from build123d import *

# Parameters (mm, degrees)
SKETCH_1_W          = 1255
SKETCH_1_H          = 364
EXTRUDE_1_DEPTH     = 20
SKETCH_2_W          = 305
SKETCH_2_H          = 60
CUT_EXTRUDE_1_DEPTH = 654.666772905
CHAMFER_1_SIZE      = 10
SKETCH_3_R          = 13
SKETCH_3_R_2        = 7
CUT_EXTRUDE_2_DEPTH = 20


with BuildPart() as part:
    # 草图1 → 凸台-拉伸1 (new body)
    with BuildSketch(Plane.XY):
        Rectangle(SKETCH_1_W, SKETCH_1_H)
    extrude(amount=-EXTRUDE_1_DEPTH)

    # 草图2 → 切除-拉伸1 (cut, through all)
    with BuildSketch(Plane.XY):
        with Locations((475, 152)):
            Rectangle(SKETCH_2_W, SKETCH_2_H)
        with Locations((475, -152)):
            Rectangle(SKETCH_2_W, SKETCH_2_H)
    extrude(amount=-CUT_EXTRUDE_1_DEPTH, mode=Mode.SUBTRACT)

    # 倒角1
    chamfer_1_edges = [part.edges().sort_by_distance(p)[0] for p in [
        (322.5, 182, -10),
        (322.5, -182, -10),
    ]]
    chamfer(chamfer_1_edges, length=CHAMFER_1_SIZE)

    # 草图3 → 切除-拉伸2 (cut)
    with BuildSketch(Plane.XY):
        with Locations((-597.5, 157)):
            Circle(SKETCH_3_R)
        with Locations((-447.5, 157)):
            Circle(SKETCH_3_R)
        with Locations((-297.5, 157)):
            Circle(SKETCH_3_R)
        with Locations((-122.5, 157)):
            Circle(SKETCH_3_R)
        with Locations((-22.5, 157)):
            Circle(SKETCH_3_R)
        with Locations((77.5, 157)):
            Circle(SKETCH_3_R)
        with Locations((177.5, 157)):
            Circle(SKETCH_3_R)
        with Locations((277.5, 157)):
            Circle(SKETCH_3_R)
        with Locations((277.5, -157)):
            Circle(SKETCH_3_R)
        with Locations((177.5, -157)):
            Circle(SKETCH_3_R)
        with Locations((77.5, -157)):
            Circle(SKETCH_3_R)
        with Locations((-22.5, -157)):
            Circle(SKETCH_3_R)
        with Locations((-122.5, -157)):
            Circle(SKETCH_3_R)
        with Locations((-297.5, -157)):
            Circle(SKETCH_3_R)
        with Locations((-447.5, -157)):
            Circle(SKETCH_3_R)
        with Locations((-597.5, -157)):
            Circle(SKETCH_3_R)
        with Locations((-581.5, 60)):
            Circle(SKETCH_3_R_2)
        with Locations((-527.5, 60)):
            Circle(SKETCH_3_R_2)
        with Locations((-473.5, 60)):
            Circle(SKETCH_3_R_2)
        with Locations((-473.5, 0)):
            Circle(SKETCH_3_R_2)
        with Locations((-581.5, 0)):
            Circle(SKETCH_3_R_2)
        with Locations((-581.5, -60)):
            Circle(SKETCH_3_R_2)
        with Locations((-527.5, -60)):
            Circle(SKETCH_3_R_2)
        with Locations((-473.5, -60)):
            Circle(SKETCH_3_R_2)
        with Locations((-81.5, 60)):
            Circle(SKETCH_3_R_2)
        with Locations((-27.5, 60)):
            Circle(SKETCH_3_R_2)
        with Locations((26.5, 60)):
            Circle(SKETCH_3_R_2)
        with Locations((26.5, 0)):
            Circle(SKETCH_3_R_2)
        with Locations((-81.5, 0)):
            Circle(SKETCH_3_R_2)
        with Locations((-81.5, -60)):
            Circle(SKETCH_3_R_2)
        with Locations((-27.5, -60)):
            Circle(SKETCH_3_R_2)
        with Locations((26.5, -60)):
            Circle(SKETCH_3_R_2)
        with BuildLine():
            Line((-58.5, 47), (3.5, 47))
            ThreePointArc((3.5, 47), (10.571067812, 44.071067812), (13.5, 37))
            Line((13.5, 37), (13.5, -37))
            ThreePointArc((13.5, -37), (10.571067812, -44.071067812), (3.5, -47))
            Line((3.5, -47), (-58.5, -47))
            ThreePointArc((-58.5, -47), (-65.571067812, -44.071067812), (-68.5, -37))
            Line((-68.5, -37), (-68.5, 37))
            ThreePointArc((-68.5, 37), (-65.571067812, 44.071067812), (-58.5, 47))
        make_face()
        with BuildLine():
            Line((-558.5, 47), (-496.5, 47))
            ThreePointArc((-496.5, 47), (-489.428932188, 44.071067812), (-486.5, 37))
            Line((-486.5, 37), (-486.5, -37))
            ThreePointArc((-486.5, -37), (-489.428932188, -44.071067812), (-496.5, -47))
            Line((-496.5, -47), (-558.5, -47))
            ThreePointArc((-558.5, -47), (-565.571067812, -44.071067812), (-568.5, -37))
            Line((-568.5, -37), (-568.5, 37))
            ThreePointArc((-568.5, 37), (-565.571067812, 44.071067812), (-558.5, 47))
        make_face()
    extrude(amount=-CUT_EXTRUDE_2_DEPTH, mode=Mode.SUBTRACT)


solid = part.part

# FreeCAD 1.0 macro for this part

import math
import FreeCAD as App
import Part
import Sketcher

V = App.Vector
Q = App.Units.Quantity


def edges_at(feature, points):
    """Names of the edges that pass closest to the given points."""
    edges = feature.Shape.Edges
    near = lambda p: min(range(len(edges)), key=lambda i: edges[i].distToShape(Part.Vertex(*p))[0])
    return sorted({f"Edge{near(p) + 1}" for p in points})


def add_polygon(sketch, points):
    """Adds a closed chain of lines whose ends are joined by coincident constraints."""
    first, n = sketch.GeometryCount, len(points)
    for a, b in zip(points, points[1:] + points[:1]):
        sketch.addGeometry(Part.LineSegment(App.Vector(*a, 0), App.Vector(*b, 0)), False)
    for i in range(n):
        sketch.addConstraint(Sketcher.Constraint("Coincident", first + i, 2, first + (i + 1) % n, 1))

doc = App.newDocument("Part")
body = doc.addObject("PartDesign::Body", "Body")

# Sketch on XY plane
sketch1 = body.newObject("Sketcher::SketchObject", "Sketch")
sketch1.AttachmentSupport = (doc.getObject("XY_Plane"), [""])
sketch1.MapMode = "FlatFace"
add_polygon(sketch1, [(-628, 182), (-628, -182), (628, -182), (628, 182)])  # lines 0-3
sketch1.addConstraint([
    Sketcher.Constraint("Vertical", 0),
    Sketcher.Constraint("Horizontal", 1),
    Sketcher.Constraint("Vertical", 2),
    Sketcher.Constraint("Horizontal", 3),
    Sketcher.Constraint("Symmetric", 0, 2, 2, 2, -1, 1),
    Sketcher.Constraint("DistanceX", 1, 1, 1, 2, Q("1255 mm")),
    Sketcher.Constraint("DistanceY", 0, 2, 0, 1, Q("364 mm")),
])
pad1 = body.newObject("PartDesign::Pad", "Pad")
pad1.Profile = sketch1
pad1.Length = 20
pad1.Reversed = True

# Sketch on XY plane
sketch2 = body.newObject("Sketcher::SketchObject", "Sketch001")
sketch2.AttachmentSupport = (doc.getObject("XY_Plane"), [""])
sketch2.MapMode = "FlatFace"
add_polygon(sketch2, [(322, 182), (322, 122), (628, 122), (628, 182)])  # lines 0-3
add_polygon(sketch2, [(322, -122), (322, -182), (628, -182), (628, -122)])  # lines 4-7
sketch2.addConstraint([
    Sketcher.Constraint("Vertical", 0),
    Sketcher.Constraint("Horizontal", 1),
    Sketcher.Constraint("Vertical", 2),
    Sketcher.Constraint("Horizontal", 3),
    Sketcher.Constraint("Vertical", 4),
    Sketcher.Constraint("Horizontal", 5),
    Sketcher.Constraint("Vertical", 6),
    Sketcher.Constraint("Horizontal", 7),
    Sketcher.Constraint("Symmetric", 3, 2, 4, 2, -1),
    Sketcher.Constraint("Symmetric", 1, 2, 6, 2, -1),
    Sketcher.Constraint("DistanceX", 1, 1, 1, 2, Q("305 mm")),
    Sketcher.Constraint("DistanceY", 0, 2, 0, 1, Q("60 mm")),
    Sketcher.Constraint("DistanceY", -1, 1, 0, 2, Q("122 mm")),
    Sketcher.Constraint("DistanceX", -1, 1, 0, 2, Q("322.5 mm")),
])
pocket1 = body.newObject("PartDesign::Pocket", "Pocket")
pocket1.Profile = sketch2
pocket1.Type = "ThroughAll"
doc.recompute()

chamfer = body.newObject("PartDesign::Chamfer", "Chamfer")
chamfer.Base = (pocket1, edges_at(pocket1, [(322.5, 182, -10), (322.5, -182, -10)]))
chamfer.Size = 10

# Sketch on XY plane
sketch3 = body.newObject("Sketcher::SketchObject", "Sketch002")
sketch3.AttachmentSupport = (doc.getObject("XY_Plane"), [""])
sketch3.MapMode = "FlatFace"
sketch3.addGeometry([
    Part.Circle(V(-598, 157, 0), V(0, 0, 1), 13),  # 0
    Part.Circle(V(-448, 157, 0), V(0, 0, 1), 13),  # 1
    Part.Circle(V(-298, 157, 0), V(0, 0, 1), 13),  # 2
    Part.Circle(V(-122, 157, 0), V(0, 0, 1), 13),  # 3
    Part.Circle(V(-22, 157, 0), V(0, 0, 1), 13),  # 4
    Part.Circle(V(78, 157, 0), V(0, 0, 1), 13),  # 5
    Part.Circle(V(178, 157, 0), V(0, 0, 1), 13),  # 6
    Part.Circle(V(278, 157, 0), V(0, 0, 1), 13),  # 7
    Part.Circle(V(278, -157, 0), V(0, 0, 1), 13),  # 8
    Part.Circle(V(178, -157, 0), V(0, 0, 1), 13),  # 9
    Part.Circle(V(78, -157, 0), V(0, 0, 1), 13),  # 10
    Part.Circle(V(-22, -157, 0), V(0, 0, 1), 13),  # 11
    Part.Circle(V(-122, -157, 0), V(0, 0, 1), 13),  # 12
    Part.Circle(V(-298, -157, 0), V(0, 0, 1), 13),  # 13
    Part.Circle(V(-448, -157, 0), V(0, 0, 1), 13),  # 14
    Part.Circle(V(-598, -157, 0), V(0, 0, 1), 13),  # 15
    Part.Circle(V(-582, 60, 0), V(0, 0, 1), 7),  # 16
    Part.Circle(V(-528, 60, 0), V(0, 0, 1), 7),  # 17
    Part.Circle(V(-474, 60, 0), V(0, 0, 1), 7),  # 18
    Part.Circle(V(-474, 0, 0), V(0, 0, 1), 7),  # 19
    Part.Circle(V(-582, 0, 0), V(0, 0, 1), 7),  # 20
    Part.Circle(V(-582, -60, 0), V(0, 0, 1), 7),  # 21
    Part.Circle(V(-528, -60, 0), V(0, 0, 1), 7),  # 22
    Part.Circle(V(-474, -60, 0), V(0, 0, 1), 7),  # 23
    Part.Circle(V(-82, 60, 0), V(0, 0, 1), 7),  # 24
    Part.Circle(V(-28, 60, 0), V(0, 0, 1), 7),  # 25
    Part.Circle(V(26, 60, 0), V(0, 0, 1), 7),  # 26
    Part.Circle(V(26, 0, 0), V(0, 0, 1), 7),  # 27
    Part.Circle(V(-82, 0, 0), V(0, 0, 1), 7),  # 28
    Part.Circle(V(-82, -60, 0), V(0, 0, 1), 7),  # 29
    Part.Circle(V(-28, -60, 0), V(0, 0, 1), 7),  # 30
    Part.Circle(V(26, -60, 0), V(0, 0, 1), 7),  # 31
    Part.LineSegment(V(4, 47, 0), V(-58, 47, 0)),  # 32
    Part.ArcOfCircle(Part.Circle(V(-58, 37, 0), V(0, 0, 1), 10), math.radians(90), math.radians(180)),  # 33
    Part.LineSegment(V(-68, 37, 0), V(-68, -37, 0)),  # 34
    Part.ArcOfCircle(Part.Circle(V(-58, -37, 0), V(0, 0, 1), 10), math.radians(180), math.radians(270)),  # 35
    Part.LineSegment(V(-58, -47, 0), V(4, -47, 0)),  # 36
    Part.ArcOfCircle(Part.Circle(V(4, -37, 0), V(0, 0, 1), 10), math.radians(-90), math.radians(0)),  # 37
    Part.LineSegment(V(14, -37, 0), V(14, 37, 0)),  # 38
    Part.ArcOfCircle(Part.Circle(V(4, 37, 0), V(0, 0, 1), 10), math.radians(0), math.radians(90)),  # 39
    Part.LineSegment(V(-496, 47, 0), V(-558, 47, 0)),  # 40
    Part.ArcOfCircle(Part.Circle(V(-558, 37, 0), V(0, 0, 1), 10), math.radians(90), math.radians(180)),  # 41
    Part.LineSegment(V(-568, 37, 0), V(-568, -37, 0)),  # 42
    Part.ArcOfCircle(Part.Circle(V(-558, -37, 0), V(0, 0, 1), 10), math.radians(180), math.radians(270)),  # 43
    Part.LineSegment(V(-558, -47, 0), V(-496, -47, 0)),  # 44
    Part.ArcOfCircle(Part.Circle(V(-496, -37, 0), V(0, 0, 1), 10), math.radians(-90), math.radians(0)),  # 45
    Part.LineSegment(V(-486, -37, 0), V(-486, 37, 0)),  # 46
    Part.ArcOfCircle(Part.Circle(V(-496, 37, 0), V(0, 0, 1), 10), math.radians(0), math.radians(90)),  # 47
], False)
sketch3.addConstraint([
    Sketcher.Constraint("Tangent", 32, 2, 33, 1),
    Sketcher.Constraint("Tangent", 33, 2, 34, 1),
    Sketcher.Constraint("Tangent", 34, 2, 35, 1),
    Sketcher.Constraint("Tangent", 35, 2, 36, 1),
    Sketcher.Constraint("Tangent", 36, 2, 37, 1),
    Sketcher.Constraint("Tangent", 37, 2, 38, 1),
    Sketcher.Constraint("Tangent", 38, 2, 39, 1),
    Sketcher.Constraint("Tangent", 39, 2, 32, 1),
    Sketcher.Constraint("Tangent", 40, 2, 41, 1),
    Sketcher.Constraint("Tangent", 41, 2, 42, 1),
    Sketcher.Constraint("Tangent", 42, 2, 43, 1),
    Sketcher.Constraint("Tangent", 43, 2, 44, 1),
    Sketcher.Constraint("Tangent", 44, 2, 45, 1),
    Sketcher.Constraint("Tangent", 45, 2, 46, 1),
    Sketcher.Constraint("Tangent", 46, 2, 47, 1),
    Sketcher.Constraint("Tangent", 47, 2, 40, 1),
    Sketcher.Constraint("Horizontal", 32),
    Sketcher.Constraint("Vertical", 34),
    Sketcher.Constraint("Horizontal", 36),
    Sketcher.Constraint("Vertical", 38),
    Sketcher.Constraint("Horizontal", 40),
    Sketcher.Constraint("Vertical", 42),
    Sketcher.Constraint("Horizontal", 44),
    Sketcher.Constraint("Vertical", 46),
    Sketcher.Constraint("Equal", 0, 1),
    Sketcher.Constraint("Equal", 1, 2),
    Sketcher.Constraint("Equal", 2, 3),
    Sketcher.Constraint("Equal", 3, 4),
    Sketcher.Constraint("Equal", 4, 5),
    Sketcher.Constraint("Equal", 5, 6),
    Sketcher.Constraint("Equal", 6, 7),
    Sketcher.Constraint("Equal", 7, 8),
    Sketcher.Constraint("Equal", 8, 9),
    Sketcher.Constraint("Equal", 9, 10),
    Sketcher.Constraint("Equal", 10, 11),
    Sketcher.Constraint("Equal", 11, 12),
    Sketcher.Constraint("Equal", 12, 13),
    Sketcher.Constraint("Equal", 13, 14),
    Sketcher.Constraint("Equal", 14, 15),
    Sketcher.Constraint("Equal", 16, 17),
    Sketcher.Constraint("Equal", 17, 18),
    Sketcher.Constraint("Equal", 18, 19),
    Sketcher.Constraint("Equal", 19, 20),
    Sketcher.Constraint("Equal", 20, 21),
    Sketcher.Constraint("Equal", 21, 22),
    Sketcher.Constraint("Equal", 22, 23),
    Sketcher.Constraint("Equal", 23, 24),
    Sketcher.Constraint("Equal", 24, 25),
    Sketcher.Constraint("Equal", 25, 26),
    Sketcher.Constraint("Equal", 26, 27),
    Sketcher.Constraint("Equal", 27, 28),
    Sketcher.Constraint("Equal", 28, 29),
    Sketcher.Constraint("Equal", 29, 30),
    Sketcher.Constraint("Equal", 30, 31),
    Sketcher.Constraint("Equal", 33, 35),
    Sketcher.Constraint("Equal", 35, 37),
    Sketcher.Constraint("Equal", 37, 39),
    Sketcher.Constraint("Equal", 39, 41),
    Sketcher.Constraint("Equal", 41, 43),
    Sketcher.Constraint("Equal", 43, 45),
    Sketcher.Constraint("Equal", 45, 47),
    Sketcher.Constraint("Symmetric", 7, 3, 8, 3, -1),
    Sketcher.Constraint("Symmetric", 6, 3, 9, 3, -1),
    Sketcher.Constraint("Symmetric", 5, 3, 10, 3, -1),
    Sketcher.Constraint("Symmetric", 4, 3, 11, 3, -1),
    Sketcher.Constraint("Symmetric", 3, 3, 12, 3, -1),
    Sketcher.Constraint("Symmetric", 2, 3, 13, 3, -1),
    Sketcher.Constraint("Symmetric", 1, 3, 14, 3, -1),
    Sketcher.Constraint("Symmetric", 0, 3, 15, 3, -1),
    Sketcher.Constraint("Symmetric", 16, 3, 21, 3, -1),
    Sketcher.Constraint("Symmetric", 17, 3, 22, 3, -1),
    Sketcher.Constraint("Symmetric", 18, 3, 23, 3, -1),
    Sketcher.Constraint("Symmetric", 24, 3, 29, 3, -1),
    Sketcher.Constraint("Symmetric", 25, 3, 30, 3, -1),
    Sketcher.Constraint("Symmetric", 26, 3, 31, 3, -1),
    Sketcher.Constraint("PointOnObject", 19, 3, -1),
    Sketcher.Constraint("PointOnObject", 20, 3, -1),
    Sketcher.Constraint("PointOnObject", 27, 3, -1),
    Sketcher.Constraint("PointOnObject", 28, 3, -1),
    Sketcher.Constraint("Horizontal", 0, 3, 1, 3),
    Sketcher.Constraint("Horizontal", 1, 3, 2, 3),
    Sketcher.Constraint("Horizontal", 2, 3, 3, 3),
    Sketcher.Constraint("Horizontal", 3, 3, 4, 3),
    Sketcher.Constraint("Horizontal", 4, 3, 5, 3),
    Sketcher.Constraint("Horizontal", 5, 3, 6, 3),
    Sketcher.Constraint("Horizontal", 6, 3, 7, 3),
    Sketcher.Constraint("Horizontal", 16, 3, 17, 3),
    Sketcher.Constraint("Horizontal", 17, 3, 18, 3),
    Sketcher.Constraint("Horizontal", 18, 3, 24, 3),
    Sketcher.Constraint("Horizontal", 24, 3, 25, 3),
    Sketcher.Constraint("Horizontal", 25, 3, 26, 3),
    Sketcher.Constraint("Horizontal", 39, 3, 41, 3),
    Sketcher.Constraint("Horizontal", 37, 3, 43, 3),
    Sketcher.Constraint("Vertical", 18, 3, 19, 3),
    Sketcher.Constraint("Vertical", 16, 3, 20, 3),
    Sketcher.Constraint("Vertical", 26, 3, 27, 3),
    Sketcher.Constraint("Vertical", 24, 3, 28, 3),
    Sketcher.Constraint("Equal", 36, 40),
    Sketcher.Constraint("Diameter", 0, Q("26 mm")),
    Sketcher.Constraint("Diameter", 16, Q("14 mm")),
    Sketcher.Constraint("Radius", 33, Q("10 mm")),
    Sketcher.Constraint("DistanceX", 32, 2, 32, 1, Q("62 mm")),
    Sketcher.Constraint("DistanceY", 34, 2, 34, 1, Q("74 mm")),
    Sketcher.Constraint("DistanceY", -1, 1, 0, 3, Q("157 mm")),
    Sketcher.Constraint("DistanceY", -1, 1, 16, 3, Q("60 mm")),
    Sketcher.Constraint("DistanceY", -1, 1, 33, 3, Q("37 mm")),
    Sketcher.Constraint("DistanceX", 0, 3, 1, 3, Q("150 mm")),
    Sketcher.Constraint("DistanceX", 1, 3, 2, 3, Q("150 mm")),
    Sketcher.Constraint("DistanceX", 2, 3, 3, 3, Q("175 mm")),
    Sketcher.Constraint("DistanceX", 3, 3, 4, 3, Q("100 mm")),
    Sketcher.Constraint("DistanceX", 4, 3, 5, 3, Q("100 mm")),
    Sketcher.Constraint("DistanceX", 5, 3, 6, 3, Q("100 mm")),
    Sketcher.Constraint("DistanceX", 6, 3, 7, 3, Q("100 mm")),
    Sketcher.Constraint("DistanceX", 0, 3, 16, 3, Q("16 mm")),
    Sketcher.Constraint("DistanceX", 16, 3, 17, 3, Q("54 mm")),
    Sketcher.Constraint("DistanceX", 17, 3, 18, 3, Q("54 mm")),
    Sketcher.Constraint("DistanceX", 3, 3, 24, 3, Q("41 mm")),
    Sketcher.Constraint("DistanceX", 24, 3, 25, 3, Q("54 mm")),
    Sketcher.Constraint("DistanceX", 25, 3, 26, 3, Q("54 mm")),
    Sketcher.Constraint("DistanceX", 24, 3, 33, 3, Q("23 mm")),
    Sketcher.Constraint("DistanceX", 16, 3, 41, 3, Q("23 mm")),
    Sketcher.Constraint("DistanceX", 0, 3, -1, 1, Q("597.5 mm")),
])
pocket2 = body.newObject("PartDesign::Pocket", "Pocket001")
pocket2.Profile = sketch3
pocket2.Length = 20

doc.recompute()
